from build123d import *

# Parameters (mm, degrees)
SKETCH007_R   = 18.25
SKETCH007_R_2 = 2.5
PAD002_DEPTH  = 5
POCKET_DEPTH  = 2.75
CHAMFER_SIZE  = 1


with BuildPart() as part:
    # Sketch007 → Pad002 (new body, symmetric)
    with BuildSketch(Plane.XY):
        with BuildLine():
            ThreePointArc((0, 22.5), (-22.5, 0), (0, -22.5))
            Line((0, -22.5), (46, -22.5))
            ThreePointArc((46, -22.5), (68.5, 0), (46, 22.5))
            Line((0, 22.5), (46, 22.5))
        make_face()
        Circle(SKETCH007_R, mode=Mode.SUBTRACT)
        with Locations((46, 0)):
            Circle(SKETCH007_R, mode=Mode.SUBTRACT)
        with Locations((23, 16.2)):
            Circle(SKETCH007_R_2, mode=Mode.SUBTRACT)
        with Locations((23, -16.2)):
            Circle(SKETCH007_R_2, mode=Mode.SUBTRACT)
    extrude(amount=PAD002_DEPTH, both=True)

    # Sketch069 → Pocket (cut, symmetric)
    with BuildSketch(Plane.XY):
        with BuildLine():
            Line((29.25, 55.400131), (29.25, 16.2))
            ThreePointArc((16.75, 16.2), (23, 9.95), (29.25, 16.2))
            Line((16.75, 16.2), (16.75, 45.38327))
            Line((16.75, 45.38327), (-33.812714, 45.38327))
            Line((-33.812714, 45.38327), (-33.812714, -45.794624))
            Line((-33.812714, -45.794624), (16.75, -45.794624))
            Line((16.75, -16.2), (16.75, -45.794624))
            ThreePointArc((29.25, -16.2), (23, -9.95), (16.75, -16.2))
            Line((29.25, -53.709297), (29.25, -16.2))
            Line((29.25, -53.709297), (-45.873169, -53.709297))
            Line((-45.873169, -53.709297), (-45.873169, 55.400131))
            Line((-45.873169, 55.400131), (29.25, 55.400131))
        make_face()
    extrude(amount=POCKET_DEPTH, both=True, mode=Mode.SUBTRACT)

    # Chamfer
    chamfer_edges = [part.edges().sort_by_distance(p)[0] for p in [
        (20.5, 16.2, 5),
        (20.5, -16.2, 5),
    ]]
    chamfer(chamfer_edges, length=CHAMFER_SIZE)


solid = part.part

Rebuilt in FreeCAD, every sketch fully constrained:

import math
import FreeCAD as App
import Part
import Sketcher
Q = App.Units.Quantity


def edges_at(feature, points):
    """Names of the edges that pass closest to the given points."""
    edges = feature.Shape.Edges
    near = lambda p: min(range(len(edges)), key=lambda i: edges[i].distToShape(Part.Vertex(*p))[0])
    return sorted({f"Edge{near(p) + 1}" for p in points})

doc = App.newDocument("Part")
body = doc.addObject("PartDesign::Body", "Body")

# Sketch on XY plane
sketch1 = body.newObject("Sketcher::SketchObject", "Sketch")
sketch1.AttachmentSupport = (doc.getObject("XY_Plane"), [""])
sketch1.MapMode = "FlatFace"
sketch1.addGeometry([
    Part.ArcOfCircle(Part.Circle(App.Vector(0, 0, 0), App.Vector(0, 0, 1), 22.5), math.radians(90), math.radians(270)),  # 0
    Part.LineSegment(App.Vector(0, -22.5, 0), App.Vector(46, -22.5, 0)),  # 1
    Part.ArcOfCircle(Part.Circle(App.Vector(46, 0, 0), App.Vector(0, 0, 1), 22.5), math.radians(-90), math.radians(90)),  # 2
    Part.LineSegment(App.Vector(46, 22.5, 0), App.Vector(0, 22.5, 0)),  # 3
    Part.Circle(App.Vector(0, 0, 0), App.Vector(0, 0, 1), 18.2),  # 4
    Part.Circle(App.Vector(23, -16.2, 0), App.Vector(0, 0, 1), 2.5),  # 5
    Part.Circle(App.Vector(46, 0, 0), App.Vector(0, 0, 1), 18.2),  # 6
    Part.Circle(App.Vector(23, 16.2, 0), App.Vector(0, 0, 1), 2.5),  # 7
], False)
sketch1.addConstraint([
    Sketcher.Constraint("Tangent", 0, 2, 1, 1),
    Sketcher.Constraint("Tangent", 1, 2, 2, 1),
    Sketcher.Constraint("Tangent", 2, 2, 3, 1),
    Sketcher.Constraint("Tangent", 3, 2, 0, 1),
    Sketcher.Constraint("Horizontal", 1),
    Sketcher.Constraint("Horizontal", 3),
    Sketcher.Constraint("Coincident", 0, 3, -1, 1),
    Sketcher.Constraint("Coincident", 4, 3, -1, 1),
    Sketcher.Constraint("Coincident", 6, 3, 2, 3),
    Sketcher.Constraint("Equal", 4, 6),
    Sketcher.Constraint("Equal", 5, 7),
    Sketcher.Constraint("Symmetric", 5, 3, 7, 3, -1),
    Sketcher.Constraint("Diameter", 5, Q("5 mm")),
    Sketcher.Constraint("Diameter", 4, Q("36.5 mm")),
    Sketcher.Constraint("Radius", 0, Q("22.5 mm")),
    Sketcher.Constraint("DistanceX", 1, 1, 1, 2, Q("46 mm")),
    Sketcher.Constraint("DistanceX", -1, 1, 5, 3, Q("23 mm")),
    Sketcher.Constraint("DistanceY", 5, 3, -1, 1, Q("16.2 mm")),
])
pad1 = body.newObject("PartDesign::Pad", "Pad")
pad1.Profile = sketch1
pad1.Length = 10
pad1.Midplane = True

# Sketch on XY plane
sketch2 = body.newObject("Sketcher::SketchObject", "Sketch001")
sketch2.AttachmentSupport = (doc.getObject("XY_Plane"), [""])
sketch2.MapMode = "FlatFace"
sketch2.addGeometry([
    Part.LineSegment(App.Vector(29, 16, 0), App.Vector(29, 55, 0)),  # 0
    Part.LineSegment(App.Vector(29, 55, 0), App.Vector(-46, 55, 0)),  # 1
    Part.LineSegment(App.Vector(-46, 55, 0), App.Vector(-46, -54, 0)),  # 2
    Part.LineSegment(App.Vector(-46, -54, 0), App.Vector(29, -54, 0)),  # 3
    Part.LineSegment(App.Vector(29, -54, 0), App.Vector(29, -16, 0)),  # 4
    Part.ArcOfCircle(Part.Circle(App.Vector(23, -16, 0), App.Vector(0, 0, 1), 6), math.radians(0), math.radians(180)),  # 5
    Part.LineSegment(App.Vector(17, -16, 0), App.Vector(17, -46, 0)),  # 6
    Part.LineSegment(App.Vector(17, -46, 0), App.Vector(-34, -46, 0)),  # 7
    Part.LineSegment(App.Vector(-34, -46, 0), App.Vector(-34, 45, 0)),  # 8
    Part.LineSegment(App.Vector(-34, 45, 0), App.Vector(17, 45, 0)),  # 9
    Part.LineSegment(App.Vector(17, 45, 0), App.Vector(17, 16, 0)),  # 10
    Part.ArcOfCircle(Part.Circle(App.Vector(23, 16, 0), App.Vector(0, 0, 1), 6), math.radians(180), math.radians(360)),  # 11
], False)
sketch2.addConstraint([
    Sketcher.Constraint("Coincident", 0, 2, 1, 1),
    Sketcher.Constraint("Coincident", 1, 2, 2, 1),
    Sketcher.Constraint("Coincident", 2, 2, 3, 1),
    Sketcher.Constraint("Coincident", 3, 2, 4, 1),
    Sketcher.Constraint("Tangent", 4, 2, 5, 1),
    Sketcher.Constraint("Tangent", 5, 2, 6, 1),
    Sketcher.Constraint("Coincident", 6, 2, 7, 1),
    Sketcher.Constraint("Coincident", 7, 2, 8, 1),
    Sketcher.Constraint("Coincident", 8, 2, 9, 1),
    Sketcher.Constraint("Coincident", 9, 2, 10, 1),
    Sketcher.Constraint("Tangent", 10, 2, 11, 1),
    Sketcher.Constraint("Tangent", 11, 2, 0, 1),
    Sketcher.Constraint("Vertical", 0),
    Sketcher.Constraint("Horizontal", 1),
    Sketcher.Constraint("Vertical", 2),
    Sketcher.Constraint("Horizontal", 3),
    Sketcher.Constraint("Vertical", 4),
    Sketcher.Constraint("Vertical", 6),
    Sketcher.Constraint("Horizontal", 7),
    Sketcher.Constraint("Vertical", 8),
    Sketcher.Constraint("Horizontal", 9),
    Sketcher.Constraint("Vertical", 10),
    Sketcher.Constraint("Equal", 5, 11),
    Sketcher.Constraint("Symmetric", 5, 3, 11, 3, -1),
    Sketcher.Constraint("Radius", 5, Q("6.25 mm")),
    Sketcher.Constraint("DistanceX", -1, 1, 5, 3, Q("23 mm")),
    Sketcher.Constraint("DistanceY", 5, 3, -1, 1, Q("16.2 mm")),
    Sketcher.Constraint("DistanceX", 1, 2, 1, 1, Q("75.123169 mm")),
    Sketcher.Constraint("DistanceY", 0, 1, 0, 2, Q("39.200131 mm")),
    Sketcher.Constraint("DistanceY", 2, 2, 2, 1, Q("109.109428 mm")),
    Sketcher.Constraint("DistanceY", 10, 2, 10, 1, Q("29.18327 mm")),
    Sketcher.Constraint("DistanceX", 7, 2, 7, 1, Q("50.562714 mm")),
    Sketcher.Constraint("DistanceY", 6, 2, 6, 1, Q("29.594624 mm")),
])
pocket1 = body.newObject("PartDesign::Pocket", "Pocket")
pocket1.Profile = sketch2
pocket1.Length = 5.5
pocket1.Midplane = True
doc.recompute()

chamfer = body.newObject("PartDesign::Chamfer", "Chamfer")
chamfer.Base = (pocket1, edges_at(pocket1, [(20.5, 16.2, 5), (20.5, -16.2, 5)]))
chamfer.Size = 1

doc.recompute()
